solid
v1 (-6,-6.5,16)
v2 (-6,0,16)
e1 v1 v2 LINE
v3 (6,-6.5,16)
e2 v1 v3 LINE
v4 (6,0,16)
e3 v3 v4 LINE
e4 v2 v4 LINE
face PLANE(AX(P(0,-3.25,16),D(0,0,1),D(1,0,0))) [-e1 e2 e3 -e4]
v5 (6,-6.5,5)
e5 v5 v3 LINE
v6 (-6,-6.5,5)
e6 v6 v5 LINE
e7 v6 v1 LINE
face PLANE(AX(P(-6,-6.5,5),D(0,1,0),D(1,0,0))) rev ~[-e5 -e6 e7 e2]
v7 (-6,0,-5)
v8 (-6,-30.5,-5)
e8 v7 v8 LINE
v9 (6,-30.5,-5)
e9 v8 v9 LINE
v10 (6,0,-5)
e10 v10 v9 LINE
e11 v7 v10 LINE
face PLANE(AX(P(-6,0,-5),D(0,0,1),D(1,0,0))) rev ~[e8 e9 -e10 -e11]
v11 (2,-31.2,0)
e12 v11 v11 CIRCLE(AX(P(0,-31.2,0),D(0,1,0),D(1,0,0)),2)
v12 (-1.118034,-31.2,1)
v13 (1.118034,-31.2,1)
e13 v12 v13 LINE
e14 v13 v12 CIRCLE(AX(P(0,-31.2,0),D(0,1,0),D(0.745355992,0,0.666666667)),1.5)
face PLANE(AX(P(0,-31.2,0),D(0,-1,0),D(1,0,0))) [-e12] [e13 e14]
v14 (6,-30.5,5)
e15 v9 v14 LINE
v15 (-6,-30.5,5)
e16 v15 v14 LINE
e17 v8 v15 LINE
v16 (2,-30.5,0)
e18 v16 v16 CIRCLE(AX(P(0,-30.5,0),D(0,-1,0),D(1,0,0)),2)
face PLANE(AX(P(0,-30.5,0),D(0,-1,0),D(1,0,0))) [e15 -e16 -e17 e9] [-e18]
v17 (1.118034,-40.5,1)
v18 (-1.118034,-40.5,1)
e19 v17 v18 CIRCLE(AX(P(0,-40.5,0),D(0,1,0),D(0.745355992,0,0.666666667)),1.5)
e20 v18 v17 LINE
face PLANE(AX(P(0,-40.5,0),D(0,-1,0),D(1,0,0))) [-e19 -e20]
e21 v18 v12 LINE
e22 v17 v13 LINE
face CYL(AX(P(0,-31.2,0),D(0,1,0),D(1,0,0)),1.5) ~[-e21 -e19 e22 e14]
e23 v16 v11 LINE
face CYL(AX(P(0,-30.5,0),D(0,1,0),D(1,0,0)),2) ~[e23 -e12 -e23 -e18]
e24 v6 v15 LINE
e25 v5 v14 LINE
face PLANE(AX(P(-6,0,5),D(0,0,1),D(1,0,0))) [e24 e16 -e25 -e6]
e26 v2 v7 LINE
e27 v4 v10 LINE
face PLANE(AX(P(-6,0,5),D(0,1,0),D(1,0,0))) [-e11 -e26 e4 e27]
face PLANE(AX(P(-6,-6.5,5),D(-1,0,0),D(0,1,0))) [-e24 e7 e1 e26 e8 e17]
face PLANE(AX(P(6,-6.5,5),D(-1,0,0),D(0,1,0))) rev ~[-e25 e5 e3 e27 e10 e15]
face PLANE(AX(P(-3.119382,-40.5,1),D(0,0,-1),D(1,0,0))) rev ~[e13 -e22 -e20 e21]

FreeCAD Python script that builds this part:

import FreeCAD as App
import Part
import Sketcher


def add_polygon(sketch, points):
    """Adds a closed chain of lines whose ends are joined by coincident constraints."""
    first, n = sketch.GeometryCount, len(points)
    for a, b in zip(points, points[1:] + points[:1]):
        sketch.addGeometry(Part.LineSegment(App.Vector(*a, 0), App.Vector(*b, 0)), False)
    for i in range(n):
        sketch.addConstraint(Sketcher.Constraint("Coincident", first + i, 2, first + (i + 1) % n, 1))

doc = App.newDocument("Part")
body = doc.addObject("PartDesign::Body", "Body")

sketch1 = body.newObject("Sketcher::SketchObject", "Sketch")
sketch1.AttachmentSupport = (doc.getObject("XZ_Plane"), [""])
sketch1.MapMode = "FlatFace"
add_polygon(sketch1, [(-6, 5), (-6, -5), (6, -5), (6, 5)])
sketch1.addConstraint([
    Sketcher.Constraint("Vertical", 0),
    Sketcher.Constraint("Horizontal", 1),
    Sketcher.Constraint("Vertical", 2),
    Sketcher.Constraint("Horizontal", 3),
    Sketcher.Constraint("Symmetric", 0, 2, 2, 2, -1, 1),
    Sketcher.Constraint("DistanceX", 1, 1, 1, 2, 12.0),
    Sketcher.Constraint("DistanceY", 0, 2, 0, 1, 10.0),
])
pad1 = body.newObject("PartDesign::Pad", "Pad")
pad1.Profile = sketch1
pad1.Length = 30.5

sketch2 = body.newObject("Sketcher::SketchObject", "Sketch001")
sketch2.AttachmentSupport = (doc.getObject("XZ_Plane"), [""])
sketch2.MapMode = "FlatFace"
sketch2.AttachmentOffset = App.Placement(App.Vector(0, 0, 30.5), App.Rotation())
sketch2.addGeometry(Part.Circle(App.Vector(0, 0, 0), App.Vector(0, 0, 1), 2), False)
sketch2.addConstraint([
    Sketcher.Constraint("Coincident", 0, 3, -1, 1),
    Sketcher.Constraint("Diameter", 0, 4.0),
])
pad2 = body.newObject("PartDesign::Pad", "Pad001")
pad2.Profile = sketch2
pad2.Length = 0.7

sketch3 = body.newObject("Sketcher::SketchObject", "Sketch002")
sketch3.AttachmentSupport = (doc.getObject("XZ_Plane"), [""])
sketch3.MapMode = "FlatFace"
sketch3.AttachmentOffset = App.Placement(App.Vector(0, 0, 31.2), App.Rotation())
sketch3.addGeometry(Part.Circle(App.Vector(0, 0, 0), App.Vector(0, 0, 1), 1.5), False)
sketch3.addConstraint([
    Sketcher.Constraint("Coincident", 0, 3, -1, 1),
    Sketcher.Constraint("Diameter", 0, 3.0),
])
pad3 = body.newObject("PartDesign::Pad", "Pad002")
pad3.Profile = sketch3
pad3.Length = 9.3

sketch4 = body.newObject("Sketcher::SketchObject", "Sketch003")
sketch4.AttachmentSupport = (doc.getObject("XZ_Plane"), [""])
sketch4.MapMode = "FlatFace"
sketch4.AttachmentOffset = App.Placement(App.Vector(0, 0, 40.5), App.Rotation())
add_polygon(sketch4, [(-3.1, 2.7), (-3.1, 1), (3.6, 1), (3.6, 2.7)])
sketch4.addConstraint([
    Sketcher.Constraint("Vertical", 0),
    Sketcher.Constraint("Horizontal", 1),
    Sketcher.Constraint("Vertical", 2),
    Sketcher.Constraint("Horizontal", 3),
    Sketcher.Constraint("DistanceY", -1, 1, 0, 2, 1.0),
    Sketcher.Constraint("DistanceX", 1, 1, 1, 2, 6.687609),
    Sketcher.Constraint("DistanceY", 0, 2, 0, 1, 1.676586),
    Sketcher.Constraint("DistanceX", 0, 2, -1, 1, 3.119382),
])
pocket1 = body.newObject("PartDesign::Pocket", "Pocket")
pocket1.Profile = sketch4
pocket1.Length = 9.3

sketch5 = body.newObject("Sketcher::SketchObject", "Sketch004")
sketch5.AttachmentSupport = (doc.getObject("XY_Plane"), [""])
sketch5.MapMode = "FlatFace"
sketch5.AttachmentOffset = App.Placement(App.Vector(0, 0, 5), App.Rotation())
add_polygon(sketch5, [(-6, 0), (-6, -6), (6, -6), (6, 0)])
sketch5.addConstraint([
    Sketcher.Constraint("Vertical", 0),
    Sketcher.Constraint("Horizontal", 1),
    Sketcher.Constraint("Vertical", 2),
    Sketcher.Constraint("Horizontal", 3),
    Sketcher.Constraint("Symmetric", 2, 2, 3, 2, -1, 1),
    Sketcher.Constraint("DistanceX", 1, 1, 1, 2, 12.0),
    Sketcher.Constraint("DistanceY", 0, 2, 0, 1, 6.5),
])
pad4 = body.newObject("PartDesign::Pad", "Pad003")
pad4.Profile = sketch5
pad4.Length = 11

doc.recompute()
